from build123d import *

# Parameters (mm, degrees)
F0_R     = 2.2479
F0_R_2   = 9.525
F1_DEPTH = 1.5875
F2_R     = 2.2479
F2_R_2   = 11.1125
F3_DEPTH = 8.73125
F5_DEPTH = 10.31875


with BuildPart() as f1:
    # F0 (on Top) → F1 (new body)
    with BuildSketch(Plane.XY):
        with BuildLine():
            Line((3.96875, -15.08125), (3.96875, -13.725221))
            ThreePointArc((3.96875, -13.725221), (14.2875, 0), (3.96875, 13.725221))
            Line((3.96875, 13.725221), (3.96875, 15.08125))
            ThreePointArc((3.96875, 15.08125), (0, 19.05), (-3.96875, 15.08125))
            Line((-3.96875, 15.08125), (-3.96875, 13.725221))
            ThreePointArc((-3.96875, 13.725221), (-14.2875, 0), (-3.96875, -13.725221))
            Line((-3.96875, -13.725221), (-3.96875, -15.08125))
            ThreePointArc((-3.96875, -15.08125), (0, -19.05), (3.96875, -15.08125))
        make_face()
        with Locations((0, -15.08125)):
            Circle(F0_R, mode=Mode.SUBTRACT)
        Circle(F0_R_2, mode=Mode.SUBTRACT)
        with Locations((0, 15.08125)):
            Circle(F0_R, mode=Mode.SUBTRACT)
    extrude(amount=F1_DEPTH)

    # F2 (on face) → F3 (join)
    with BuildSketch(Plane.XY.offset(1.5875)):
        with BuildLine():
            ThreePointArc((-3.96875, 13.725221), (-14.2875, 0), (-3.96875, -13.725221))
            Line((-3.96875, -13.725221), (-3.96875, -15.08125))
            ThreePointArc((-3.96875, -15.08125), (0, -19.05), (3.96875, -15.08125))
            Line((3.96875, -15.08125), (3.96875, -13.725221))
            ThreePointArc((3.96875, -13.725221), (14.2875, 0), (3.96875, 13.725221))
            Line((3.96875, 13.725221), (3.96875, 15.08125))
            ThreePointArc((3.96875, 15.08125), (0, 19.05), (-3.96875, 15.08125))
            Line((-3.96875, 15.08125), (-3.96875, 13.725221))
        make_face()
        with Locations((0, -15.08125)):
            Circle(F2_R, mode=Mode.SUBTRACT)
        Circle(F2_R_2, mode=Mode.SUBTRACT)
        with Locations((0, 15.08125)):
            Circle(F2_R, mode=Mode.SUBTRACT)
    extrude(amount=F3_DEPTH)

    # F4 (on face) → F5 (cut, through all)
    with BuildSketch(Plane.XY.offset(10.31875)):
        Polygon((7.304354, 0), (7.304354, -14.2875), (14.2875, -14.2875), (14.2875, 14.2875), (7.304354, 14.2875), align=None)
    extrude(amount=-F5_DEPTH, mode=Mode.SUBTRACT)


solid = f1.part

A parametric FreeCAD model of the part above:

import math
import FreeCAD as App
import Part
import Sketcher
from FreeCAD import Vector
Q = App.Units.Quantity

doc = App.newDocument("Part")
body = doc.addObject("PartDesign::Body", "Body")

# Sketch on XY plane
sketch1 = doc.addObject("Sketcher::SketchObject", "Sketch")
body.addObject(sketch1)
sketch1.AttachmentSupport = (doc.XY_Plane, [""])
sketch1.MapMode = "FlatFace"
sketch1.addGeometry([
    Part.LineSegment(Vector(4, -15.1, 0), Vector(4, -13.7, 0)),  # 0
    Part.ArcOfCircle(Part.Circle(Vector(0, 0, 0), Vector(0, 0, 1), 14.3), math.radians(-74), math.radians(74)),  # 1
    Part.LineSegment(Vector(4, 13.7, 0), Vector(4, 15.1, 0)),  # 2
    Part.ArcOfCircle(Part.Circle(Vector(0, 15.1, 0), Vector(0, 0, 1), 4), math.radians(0), math.radians(180)),  # 3
    Part.LineSegment(Vector(-4, 15.1, 0), Vector(-4, 13.7, 0)),  # 4
    Part.ArcOfCircle(Part.Circle(Vector(0, 0, 0), Vector(0, 0, 1), 14.3), math.radians(106), math.radians(254)),  # 5
    Part.LineSegment(Vector(-4, -13.7, 0), Vector(-4, -15.1, 0)),  # 6
    Part.ArcOfCircle(Part.Circle(Vector(0, -15.1, 0), Vector(0, 0, 1), 4), math.radians(180), math.radians(360)),  # 7
    Part.Circle(Vector(0, -15.1, 0), Vector(0, 0, 1), 2.2),  # 8
    Part.Circle(Vector(0, 0, 0), Vector(0, 0, 1), 9.5),  # 9
    Part.Circle(Vector(0, 15.1, 0), Vector(0, 0, 1), 2.2),  # 10
], False)
sketch1.addConstraint([
    Sketcher.Constraint("Coincident", 0, 2, 1, 1),
    Sketcher.Constraint("Coincident", 1, 2, 2, 1),
    Sketcher.Constraint("Tangent", 2, 2, 3, 1),
    Sketcher.Constraint("Tangent", 3, 2, 4, 1),
    Sketcher.Constraint("Coincident", 4, 2, 5, 1),
    Sketcher.Constraint("Coincident", 5, 2, 6, 1),
    Sketcher.Constraint("Tangent", 6, 2, 7, 1),
    Sketcher.Constraint("Tangent", 7, 2, 0, 1),
    Sketcher.Constraint("Vertical", 0),
    Sketcher.Constraint("Vertical", 2),
    Sketcher.Constraint("Vertical", 4),
    Sketcher.Constraint("Vertical", 6),
    Sketcher.Constraint("Coincident", 1, 3, -1, 1),
    Sketcher.Constraint("Coincident", 5, 3, -1, 1),
    Sketcher.Constraint("Coincident", 9, 3, -1, 1),
    Sketcher.Constraint("Coincident", 8, 3, 7, 3),
    Sketcher.Constraint("Coincident", 10, 3, 3, 3),
    Sketcher.Constraint("Equal", 1, 5),
    Sketcher.Constraint("Equal", 3, 7),
    Sketcher.Constraint("Equal", 8, 10),
    Sketcher.Constraint("Symmetric", 3, 3, 7, 3, -1, 1),
    Sketcher.Constraint("PointOnObject", 3, 3, -2),
    Sketcher.Constraint("Diameter", 9, Q("0.75 in")),
    Sketcher.Constraint("Diameter", 8, Q("0.177 in")),
    Sketcher.Constraint("Radius", 1, Q("0.5625 in")),
    Sketcher.Constraint("Radius", 3, Q("0.15625 in")),
    Sketcher.Constraint("DistanceY", -1, 1, 3, 3, Q("0.59375 in")),
])
pad1 = doc.addObject("PartDesign::Pad", "Pad")
body.addObject(pad1)
pad1.Profile = sketch1
pad1.Length = Q("0.0625 in")

# Sketch on XY plane
sketch2 = doc.addObject("Sketcher::SketchObject", "Sketch001")
body.addObject(sketch2)
sketch2.AttachmentSupport = (doc.XY_Plane, [""])
sketch2.MapMode = "FlatFace"
sketch2.AttachmentOffset = App.Placement(Vector(0, 0, 0.0625 * 25.4), App.Rotation())
sketch2.addGeometry([
    Part.ArcOfCircle(Part.Circle(Vector(0, 0, 0), Vector(0, 0, 1), 14.3), math.radians(106), math.radians(254)),  # 0
    Part.LineSegment(Vector(-4, -13.7, 0), Vector(-4, -15.1, 0)),  # 1
    Part.ArcOfCircle(Part.Circle(Vector(0, -15.1, 0), Vector(0, 0, 1), 4), math.radians(180), math.radians(360)),  # 2
    Part.LineSegment(Vector(4, -15.1, 0), Vector(4, -13.7, 0)),  # 3
    Part.ArcOfCircle(Part.Circle(Vector(0, 0, 0), Vector(0, 0, 1), 14.3), math.radians(-74), math.radians(74)),  # 4
    Part.LineSegment(Vector(4, 13.7, 0), Vector(4, 15.1, 0)),  # 5
    Part.ArcOfCircle(Part.Circle(Vector(0, 15.1, 0), Vector(0, 0, 1), 4), math.radians(0), math.radians(180)),  # 6
    Part.LineSegment(Vector(-4, 15.1, 0), Vector(-4, 13.7, 0)),  # 7
    Part.Circle(Vector(0, -15.1, 0), Vector(0, 0, 1), 2.2),  # 8
    Part.Circle(Vector(0, 0, 0), Vector(0, 0, 1), 11.1),  # 9
    Part.Circle(Vector(0, 15.1, 0), Vector(0, 0, 1), 2.2),  # 10
], False)
sketch2.addConstraint([
    Sketcher.Constraint("Coincident", 0, 2, 1, 1),
    Sketcher.Constraint("Tangent", 1, 2, 2, 1),
    Sketcher.Constraint("Tangent", 2, 2, 3, 1),
    Sketcher.Constraint("Coincident", 3, 2, 4, 1),
    Sketcher.Constraint("Coincident", 4, 2, 5, 1),
    Sketcher.Constraint("Tangent", 5, 2, 6, 1),
    Sketcher.Constraint("Tangent", 6, 2, 7, 1),
    Sketcher.Constraint("Coincident", 7, 2, 0, 1),
    Sketcher.Constraint("Vertical", 1),
    Sketcher.Constraint("Vertical", 3),
    Sketcher.Constraint("Vertical", 5),
    Sketcher.Constraint("Vertical", 7),
    Sketcher.Constraint("Coincident", 0, 3, -1, 1),
    Sketcher.Constraint("Coincident", 4, 3, -1, 1),
    Sketcher.Constraint("Coincident", 9, 3, -1, 1),
    Sketcher.Constraint("Coincident", 8, 3, 2, 3),
    Sketcher.Constraint("Coincident", 10, 3, 6, 3),
    Sketcher.Constraint("Equal", 0, 4),
    Sketcher.Constraint("Equal", 2, 6),
    Sketcher.Constraint("Equal", 8, 10),
    Sketcher.Constraint("Symmetric", 2, 3, 6, 3, -1, 1),
    Sketcher.Constraint("PointOnObject", 2, 3, -2),
    Sketcher.Constraint("Diameter", 8, Q("0.177 in")),
    Sketcher.Constraint("Diameter", 9, Q("0.875 in")),
    Sketcher.Constraint("Radius", 0, Q("0.5625 in")),
    Sketcher.Constraint("Radius", 2, Q("0.15625 in")),
    Sketcher.Constraint("DistanceY", 2, 3, -1, 1, Q("0.59375 in")),
])
pad2 = doc.addObject("PartDesign::Pad", "Pad001")
body.addObject(pad2)
pad2.Profile = sketch2
pad2.Length = Q("0.34375 in")

# Sketch on XY plane
sketch3 = doc.addObject("Sketcher::SketchObject", "Sketch002")
body.addObject(sketch3)
sketch3.AttachmentSupport = (doc.XY_Plane, [""])
sketch3.MapMode = "FlatFace"
sketch3.AttachmentOffset = App.Placement(Vector(0, 0, 0.40625 * 25.4), App.Rotation())
sketch3.addGeometry([
    Part.LineSegment(Vector(7, -14, 0), Vector(14, -14, 0)),
    Part.LineSegment(Vector(14, -14, 0), Vector(14, 14, 0)),
    Part.LineSegment(Vector(14, 14, 0), Vector(7, 14, 0)),
    Part.LineSegment(Vector(7, 14, 0), Vector(7, -14, 0)),
], False)
sketch3.addConstraint([
    Sketcher.Constraint("Coincident", 0, 2, 1, 1),
    Sketcher.Constraint("Coincident", 1, 2, 2, 1),
    Sketcher.Constraint("Coincident", 2, 2, 3, 1),
    Sketcher.Constraint("Coincident", 3, 2, 0, 1),
    Sketcher.Constraint("Horizontal", 0),
    Sketcher.Constraint("Vertical", 1),
    Sketcher.Constraint("Horizontal", 2),
    Sketcher.Constraint("Vertical", 3),
    Sketcher.Constraint("DistanceY", 1, 1, 1, 2, Q("1.125 in")),
    Sketcher.Constraint("DistanceX", -1, 1, 0, 2, Q("0.5625 in")),
    Sketcher.Constraint("DistanceY", 0, 2, -1, 1, Q("0.5625 in")),
    Sketcher.Constraint("DistanceX", 0, 1, 0, 2, Q("6.983146 mm")),
])
pocket1 = doc.addObject("PartDesign::Pocket", "Pocket")
body.addObject(pocket1)
pocket1.Profile = sketch3
pocket1.Type = "ThroughAll"

doc.recompute()
